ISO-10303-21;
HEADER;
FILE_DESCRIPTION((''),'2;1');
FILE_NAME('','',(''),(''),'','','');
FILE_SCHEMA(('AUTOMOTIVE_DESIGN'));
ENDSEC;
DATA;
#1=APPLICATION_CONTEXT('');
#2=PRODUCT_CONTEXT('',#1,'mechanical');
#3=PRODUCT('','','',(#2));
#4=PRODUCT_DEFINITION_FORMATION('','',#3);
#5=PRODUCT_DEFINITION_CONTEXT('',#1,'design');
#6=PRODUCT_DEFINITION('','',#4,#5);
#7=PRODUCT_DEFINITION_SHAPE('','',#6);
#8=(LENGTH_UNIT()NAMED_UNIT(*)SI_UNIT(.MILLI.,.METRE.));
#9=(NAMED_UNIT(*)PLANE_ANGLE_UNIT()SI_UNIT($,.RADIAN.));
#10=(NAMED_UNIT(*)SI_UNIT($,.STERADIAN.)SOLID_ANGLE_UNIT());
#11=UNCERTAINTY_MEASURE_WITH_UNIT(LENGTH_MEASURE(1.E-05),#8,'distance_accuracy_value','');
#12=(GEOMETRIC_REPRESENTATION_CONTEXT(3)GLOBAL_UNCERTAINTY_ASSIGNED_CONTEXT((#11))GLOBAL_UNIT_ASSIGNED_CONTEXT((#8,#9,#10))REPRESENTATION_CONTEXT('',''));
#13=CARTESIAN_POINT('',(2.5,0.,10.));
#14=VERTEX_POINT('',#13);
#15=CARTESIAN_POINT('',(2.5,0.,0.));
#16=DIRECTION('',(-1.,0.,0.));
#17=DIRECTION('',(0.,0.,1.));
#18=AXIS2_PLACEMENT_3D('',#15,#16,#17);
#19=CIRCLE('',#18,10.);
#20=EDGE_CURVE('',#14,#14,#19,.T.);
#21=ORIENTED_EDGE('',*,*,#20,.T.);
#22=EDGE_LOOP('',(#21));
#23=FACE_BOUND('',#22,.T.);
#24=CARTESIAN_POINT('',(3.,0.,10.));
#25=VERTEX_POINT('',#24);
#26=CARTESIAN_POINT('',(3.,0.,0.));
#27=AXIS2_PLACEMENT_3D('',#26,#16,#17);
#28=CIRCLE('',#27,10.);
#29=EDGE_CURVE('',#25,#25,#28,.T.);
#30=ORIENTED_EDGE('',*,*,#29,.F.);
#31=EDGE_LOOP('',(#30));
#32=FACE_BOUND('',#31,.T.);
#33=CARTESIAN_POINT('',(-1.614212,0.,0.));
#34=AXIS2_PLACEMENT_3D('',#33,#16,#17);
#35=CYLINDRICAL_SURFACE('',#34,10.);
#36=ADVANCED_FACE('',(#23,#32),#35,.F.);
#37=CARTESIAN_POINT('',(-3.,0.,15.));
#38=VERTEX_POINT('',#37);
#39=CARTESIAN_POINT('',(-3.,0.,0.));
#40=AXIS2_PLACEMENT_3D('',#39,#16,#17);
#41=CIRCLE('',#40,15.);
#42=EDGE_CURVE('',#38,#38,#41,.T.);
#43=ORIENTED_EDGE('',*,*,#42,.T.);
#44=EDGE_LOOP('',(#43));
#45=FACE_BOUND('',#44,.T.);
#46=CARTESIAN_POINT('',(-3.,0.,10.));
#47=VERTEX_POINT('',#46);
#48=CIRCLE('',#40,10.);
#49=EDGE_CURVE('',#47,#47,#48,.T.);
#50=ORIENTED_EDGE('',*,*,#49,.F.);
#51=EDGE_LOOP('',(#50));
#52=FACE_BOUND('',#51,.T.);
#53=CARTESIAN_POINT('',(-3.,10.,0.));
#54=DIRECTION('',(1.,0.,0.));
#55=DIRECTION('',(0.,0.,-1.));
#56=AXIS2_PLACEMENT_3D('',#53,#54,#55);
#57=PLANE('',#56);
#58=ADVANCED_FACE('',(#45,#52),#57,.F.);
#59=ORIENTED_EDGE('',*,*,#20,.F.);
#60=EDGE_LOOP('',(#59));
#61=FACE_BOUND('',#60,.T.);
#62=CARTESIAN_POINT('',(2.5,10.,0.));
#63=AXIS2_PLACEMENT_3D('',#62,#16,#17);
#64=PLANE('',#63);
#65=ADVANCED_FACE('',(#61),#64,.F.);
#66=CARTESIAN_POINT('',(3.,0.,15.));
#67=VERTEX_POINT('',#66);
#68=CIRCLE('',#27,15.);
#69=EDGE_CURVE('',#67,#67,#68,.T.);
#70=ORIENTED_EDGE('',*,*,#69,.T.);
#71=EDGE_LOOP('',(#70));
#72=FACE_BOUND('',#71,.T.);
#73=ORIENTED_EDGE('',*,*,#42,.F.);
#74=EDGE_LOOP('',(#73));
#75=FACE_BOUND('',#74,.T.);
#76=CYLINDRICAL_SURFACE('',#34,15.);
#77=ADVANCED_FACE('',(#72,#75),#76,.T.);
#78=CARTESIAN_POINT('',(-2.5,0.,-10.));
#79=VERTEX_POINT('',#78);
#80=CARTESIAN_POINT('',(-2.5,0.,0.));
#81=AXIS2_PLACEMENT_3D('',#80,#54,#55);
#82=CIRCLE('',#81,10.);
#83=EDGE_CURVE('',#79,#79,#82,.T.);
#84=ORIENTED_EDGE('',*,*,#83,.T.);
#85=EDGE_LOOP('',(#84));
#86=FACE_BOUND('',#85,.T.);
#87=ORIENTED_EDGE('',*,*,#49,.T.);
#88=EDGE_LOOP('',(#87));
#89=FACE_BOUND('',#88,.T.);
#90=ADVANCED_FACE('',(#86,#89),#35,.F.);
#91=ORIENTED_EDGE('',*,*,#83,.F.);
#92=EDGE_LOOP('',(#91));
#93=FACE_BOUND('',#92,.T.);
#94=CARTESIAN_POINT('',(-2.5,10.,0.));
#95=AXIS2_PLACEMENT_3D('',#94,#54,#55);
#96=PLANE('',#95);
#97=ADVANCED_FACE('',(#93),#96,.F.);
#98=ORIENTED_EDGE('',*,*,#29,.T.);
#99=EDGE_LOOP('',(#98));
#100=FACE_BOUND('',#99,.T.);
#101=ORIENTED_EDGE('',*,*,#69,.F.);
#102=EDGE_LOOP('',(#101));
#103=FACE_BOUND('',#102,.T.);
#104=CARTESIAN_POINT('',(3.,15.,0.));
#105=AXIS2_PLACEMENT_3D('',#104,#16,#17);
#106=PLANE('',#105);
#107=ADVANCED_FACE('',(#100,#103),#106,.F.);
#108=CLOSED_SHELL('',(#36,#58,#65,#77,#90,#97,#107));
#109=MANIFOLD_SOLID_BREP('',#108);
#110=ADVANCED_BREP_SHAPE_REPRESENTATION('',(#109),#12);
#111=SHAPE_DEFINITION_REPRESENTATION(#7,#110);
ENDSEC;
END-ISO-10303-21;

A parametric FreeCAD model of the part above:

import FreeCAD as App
import Part
import Sketcher

doc = App.newDocument("Part")
params = doc.addObject("Spreadsheet::Sheet", "Params")
for row, (alias, value) in enumerate([
    ("sketch1_width", "5 mm"),
    ("sketch1_height", "10 mm"),
    ("revolution_angle", "360 deg"),
    ("sketch2_width", "6 mm"),
    ("sketch2_height", "5 mm"),
    ("revolution2_angle", "360 deg"),
], start=1):
    params.set(f"A{row}", alias)
    params.set(f"B{row}", "=" + value)
    params.setAlias(f"B{row}", alias)

body = doc.addObject("PartDesign::Body", "Body")

sketch1 = body.newObject("Sketcher::SketchObject", "Sketch")
sketch1.AttachmentSupport = (doc.getObject("XY_Plane"), [""])
sketch1.MapMode = "FlatFace"
sketch1.addGeometry(Part.LineSegment(App.Vector(-2, 10, 0), App.Vector(-2, 0, 0)), False)
sketch1.addGeometry(Part.LineSegment(App.Vector(-2, 0, 0), App.Vector(2, 0, 0)), False)
sketch1.addGeometry(Part.LineSegment(App.Vector(2, 0, 0), App.Vector(2, 10, 0)), False)
sketch1.addGeometry(Part.LineSegment(App.Vector(2, 10, 0), App.Vector(-2, 10, 0)), False)
sketch1.addConstraint(Sketcher.Constraint("Coincident", 0, 2, 1, 1))
sketch1.addConstraint(Sketcher.Constraint("Coincident", 1, 2, 2, 1))
sketch1.addConstraint(Sketcher.Constraint("Coincident", 2, 2, 3, 1))
sketch1.addConstraint(Sketcher.Constraint("Coincident", 3, 2, 0, 1))
sketch1.addConstraint(Sketcher.Constraint("Vertical", 0))
sketch1.addConstraint(Sketcher.Constraint("Horizontal", 1))
sketch1.addConstraint(Sketcher.Constraint("Vertical", 2))
sketch1.addConstraint(Sketcher.Constraint("Horizontal", 3))
sketch1.addConstraint(Sketcher.Constraint("Symmetric", 0, 2, 1, 2, -1, 1))
sketch1.addConstraint(Sketcher.Constraint("DistanceX", 1, 1, 1, 2, 5.0))
sketch1.addConstraint(Sketcher.Constraint("DistanceY", 0, 2, 0, 1, 10.0))
sketch1.setExpression("Constraints[9]", "Params.sketch1_width")
sketch1.setExpression("Constraints[10]", "Params.sketch1_height")
revolution = body.newObject("PartDesign::Revolution", "Revolution")
revolution.Profile = sketch1
revolution.ReferenceAxis = (sketch1, ["H_Axis"])
revolution.setExpression("Angle", "Params.revolution_angle")

sketch2 = body.newObject("Sketcher::SketchObject", "Sketch001")
sketch2.AttachmentSupport = (doc.getObject("XY_Plane"), [""])
sketch2.MapMode = "FlatFace"
sketch2.addGeometry(Part.LineSegment(App.Vector(-3, 15, 0), App.Vector(-3, 10, 0)), False)
sketch2.addGeometry(Part.LineSegment(App.Vector(-3, 10, 0), App.Vector(3, 10, 0)), False)
sketch2.addGeometry(Part.LineSegment(App.Vector(3, 10, 0), App.Vector(3, 15, 0)), False)
sketch2.addGeometry(Part.LineSegment(App.Vector(3, 15, 0), App.Vector(-3, 15, 0)), False)
sketch2.addConstraint(Sketcher.Constraint("Coincident", 0, 2, 1, 1))
sketch2.addConstraint(Sketcher.Constraint("Coincident", 1, 2, 2, 1))
sketch2.addConstraint(Sketcher.Constraint("Coincident", 2, 2, 3, 1))
sketch2.addConstraint(Sketcher.Constraint("Coincident", 3, 2, 0, 1))
sketch2.addConstraint(Sketcher.Constraint("Vertical", 0))
sketch2.addConstraint(Sketcher.Constraint("Horizontal", 1))
sketch2.addConstraint(Sketcher.Constraint("Vertical", 2))
sketch2.addConstraint(Sketcher.Constraint("Horizontal", 3))
sketch2.addConstraint(Sketcher.Constraint("DistanceX", 1, 1, 1, 2, 6.0))
sketch2.addConstraint(Sketcher.Constraint("DistanceY", 0, 2, 0, 1, 5.0))
sketch2.addConstraint(Sketcher.Constraint("DistanceX", 0, 2, -1, 1, 3.0))
sketch2.addConstraint(Sketcher.Constraint("DistanceY", -1, 1, 0, 2, 10.0))
sketch2.setExpression("Constraints[8]", "Params.sketch2_width")
sketch2.setExpression("Constraints[9]", "Params.sketch2_height")
revolution2 = body.newObject("PartDesign::Revolution", "Revolution001")
revolution2.Profile = sketch2
revolution2.ReferenceAxis = (sketch2, ["H_Axis"])
revolution2.setExpression("Angle", "Params.revolution2_angle")

doc.recompute()
